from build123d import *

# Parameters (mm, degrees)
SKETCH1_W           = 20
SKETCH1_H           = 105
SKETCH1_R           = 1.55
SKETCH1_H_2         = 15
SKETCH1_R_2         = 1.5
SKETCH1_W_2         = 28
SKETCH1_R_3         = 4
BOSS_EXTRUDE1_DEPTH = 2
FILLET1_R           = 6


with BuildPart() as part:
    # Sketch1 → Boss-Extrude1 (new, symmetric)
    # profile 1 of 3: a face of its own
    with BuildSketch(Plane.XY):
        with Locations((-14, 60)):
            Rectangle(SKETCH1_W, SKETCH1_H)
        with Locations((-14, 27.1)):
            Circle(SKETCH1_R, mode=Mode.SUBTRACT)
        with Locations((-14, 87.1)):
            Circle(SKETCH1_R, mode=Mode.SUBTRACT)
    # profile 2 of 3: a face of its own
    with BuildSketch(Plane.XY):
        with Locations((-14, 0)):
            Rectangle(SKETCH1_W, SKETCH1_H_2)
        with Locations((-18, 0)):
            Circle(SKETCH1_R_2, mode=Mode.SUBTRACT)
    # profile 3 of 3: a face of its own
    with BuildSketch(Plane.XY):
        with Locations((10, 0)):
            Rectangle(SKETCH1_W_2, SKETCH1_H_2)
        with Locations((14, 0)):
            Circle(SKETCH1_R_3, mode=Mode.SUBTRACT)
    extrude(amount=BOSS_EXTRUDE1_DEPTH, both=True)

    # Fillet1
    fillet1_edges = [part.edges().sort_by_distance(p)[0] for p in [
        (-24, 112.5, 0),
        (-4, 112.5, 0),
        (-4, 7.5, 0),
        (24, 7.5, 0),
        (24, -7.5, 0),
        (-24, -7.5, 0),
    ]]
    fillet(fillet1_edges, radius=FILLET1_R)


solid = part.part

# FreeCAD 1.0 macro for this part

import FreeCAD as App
import Part
import Sketcher

V = App.Vector
Q = App.Units.Quantity


def edges_at(feature, points):
    """Names of the edges that pass closest to the given points."""
    edges = feature.Shape.Edges
    near = lambda p: min(range(len(edges)), key=lambda i: edges[i].distToShape(Part.Vertex(*p))[0])
    return sorted({f"Edge{near(p) + 1}" for p in points})

doc = App.newDocument("Part")
body = doc.addObject("PartDesign::Body", "Body")

# Sketch on XY plane
sketch1 = body.newObject("Sketcher::SketchObject", "Sketch")
sketch1.AttachmentSupport = (doc.getObject("XY_Plane"), [""])
sketch1.MapMode = "FlatFace"
sketch1.addGeometry(Part.LineSegment(V(-24, 112.5, 0), V(-24, -7.5, 0)), False)
sketch1.addGeometry(Part.LineSegment(V(-24, -7.5, 0), V(24, -7.5, 0)), False)
sketch1.addGeometry(Part.LineSegment(V(24, -7.5, 0), V(24, 7.5, 0)), False)
sketch1.addGeometry(Part.LineSegment(V(24, 7.5, 0), V(-4, 7.5, 0)), False)
sketch1.addGeometry(Part.LineSegment(V(-4, 7.5, 0), V(-4, 112.5, 0)), False)
sketch1.addGeometry(Part.LineSegment(V(-4, 112.5, 0), V(-24, 112.5, 0)), False)
sketch1.addGeometry(Part.Circle(V(-14, 27.1, 0), V(0, 0, 1), 1.6), False)
sketch1.addGeometry(Part.Circle(V(-14, 87.1, 0), V(0, 0, 1), 1.6), False)
sketch1.addGeometry(Part.Circle(V(-18, 0, 0), V(0, 0, 1), 1.5), False)
sketch1.addGeometry(Part.Circle(V(14, 0, 0), V(0, 0, 1), 4), False)
sketch1.addConstraint(Sketcher.Constraint("Coincident", 0, 2, 1, 1))
sketch1.addConstraint(Sketcher.Constraint("Coincident", 1, 2, 2, 1))
sketch1.addConstraint(Sketcher.Constraint("Coincident", 2, 2, 3, 1))
sketch1.addConstraint(Sketcher.Constraint("Coincident", 3, 2, 4, 1))
sketch1.addConstraint(Sketcher.Constraint("Coincident", 4, 2, 5, 1))
sketch1.addConstraint(Sketcher.Constraint("Coincident", 5, 2, 0, 1))
sketch1.addConstraint(Sketcher.Constraint("Vertical", 0))
sketch1.addConstraint(Sketcher.Constraint("Horizontal", 1))
sketch1.addConstraint(Sketcher.Constraint("Vertical", 2))
sketch1.addConstraint(Sketcher.Constraint("Horizontal", 3))
sketch1.addConstraint(Sketcher.Constraint("Vertical", 4))
sketch1.addConstraint(Sketcher.Constraint("Horizontal", 5))
sketch1.addConstraint(Sketcher.Constraint("Equal", 6, 7))
sketch1.addConstraint(Sketcher.Constraint("Symmetric", 0, 2, 2, 2, -1, 1))
sketch1.addConstraint(Sketcher.Constraint("PointOnObject", 8, 3, -1))
sketch1.addConstraint(Sketcher.Constraint("PointOnObject", 9, 3, -1))
sketch1.addConstraint(Sketcher.Constraint("Vertical", 6, 3, 7, 3))
sketch1.addConstraint(Sketcher.Constraint("Diameter", 8, Q("3 mm")))
sketch1.addConstraint(Sketcher.Constraint("Diameter", 9, Q("8 mm")))
sketch1.addConstraint(Sketcher.Constraint("Diameter", 6, Q("3.1 mm")))
sketch1.addConstraint(Sketcher.Constraint("DistanceX", 1, 1, 1, 2, Q("48 mm")))
sketch1.addConstraint(Sketcher.Constraint("DistanceX", 3, 2, 3, 1, Q("28 mm")))
sketch1.addConstraint(Sketcher.Constraint("DistanceY", 0, 2, 0, 1, Q("120 mm")))
sketch1.addConstraint(Sketcher.Constraint("DistanceY", 2, 1, 2, 2, Q("15 mm")))
sketch1.addConstraint(Sketcher.Constraint("DistanceX", 6, 3, -1, 1, Q("14 mm")))
sketch1.addConstraint(Sketcher.Constraint("DistanceX", 8, 3, -1, 1, Q("18 mm")))
sketch1.addConstraint(Sketcher.Constraint("DistanceX", -1, 1, 9, 3, Q("14 mm")))
sketch1.addConstraint(Sketcher.Constraint("DistanceY", 6, 3, 7, 3, Q("60 mm")))
sketch1.addConstraint(Sketcher.Constraint("DistanceY", -1, 1, 6, 3, Q("27.1 mm")))
pad1 = body.newObject("PartDesign::Pad", "Pad")
pad1.Profile = sketch1
pad1.Length = 4
pad1.Midplane = True
doc.recompute()

fillet = body.newObject("PartDesign::Fillet", "Fillet")
fillet.Base = (pad1, edges_at(pad1, [
    (-24, 112.5, -1),
    (-4, 112.5, -1),
    (-4, 7.5, 1),
    (24, 7.5, 0),
    (24, -7.5, 0),
    (-24, -7.5, 0),
]))
fillet.Radius = 6

doc.recompute()
